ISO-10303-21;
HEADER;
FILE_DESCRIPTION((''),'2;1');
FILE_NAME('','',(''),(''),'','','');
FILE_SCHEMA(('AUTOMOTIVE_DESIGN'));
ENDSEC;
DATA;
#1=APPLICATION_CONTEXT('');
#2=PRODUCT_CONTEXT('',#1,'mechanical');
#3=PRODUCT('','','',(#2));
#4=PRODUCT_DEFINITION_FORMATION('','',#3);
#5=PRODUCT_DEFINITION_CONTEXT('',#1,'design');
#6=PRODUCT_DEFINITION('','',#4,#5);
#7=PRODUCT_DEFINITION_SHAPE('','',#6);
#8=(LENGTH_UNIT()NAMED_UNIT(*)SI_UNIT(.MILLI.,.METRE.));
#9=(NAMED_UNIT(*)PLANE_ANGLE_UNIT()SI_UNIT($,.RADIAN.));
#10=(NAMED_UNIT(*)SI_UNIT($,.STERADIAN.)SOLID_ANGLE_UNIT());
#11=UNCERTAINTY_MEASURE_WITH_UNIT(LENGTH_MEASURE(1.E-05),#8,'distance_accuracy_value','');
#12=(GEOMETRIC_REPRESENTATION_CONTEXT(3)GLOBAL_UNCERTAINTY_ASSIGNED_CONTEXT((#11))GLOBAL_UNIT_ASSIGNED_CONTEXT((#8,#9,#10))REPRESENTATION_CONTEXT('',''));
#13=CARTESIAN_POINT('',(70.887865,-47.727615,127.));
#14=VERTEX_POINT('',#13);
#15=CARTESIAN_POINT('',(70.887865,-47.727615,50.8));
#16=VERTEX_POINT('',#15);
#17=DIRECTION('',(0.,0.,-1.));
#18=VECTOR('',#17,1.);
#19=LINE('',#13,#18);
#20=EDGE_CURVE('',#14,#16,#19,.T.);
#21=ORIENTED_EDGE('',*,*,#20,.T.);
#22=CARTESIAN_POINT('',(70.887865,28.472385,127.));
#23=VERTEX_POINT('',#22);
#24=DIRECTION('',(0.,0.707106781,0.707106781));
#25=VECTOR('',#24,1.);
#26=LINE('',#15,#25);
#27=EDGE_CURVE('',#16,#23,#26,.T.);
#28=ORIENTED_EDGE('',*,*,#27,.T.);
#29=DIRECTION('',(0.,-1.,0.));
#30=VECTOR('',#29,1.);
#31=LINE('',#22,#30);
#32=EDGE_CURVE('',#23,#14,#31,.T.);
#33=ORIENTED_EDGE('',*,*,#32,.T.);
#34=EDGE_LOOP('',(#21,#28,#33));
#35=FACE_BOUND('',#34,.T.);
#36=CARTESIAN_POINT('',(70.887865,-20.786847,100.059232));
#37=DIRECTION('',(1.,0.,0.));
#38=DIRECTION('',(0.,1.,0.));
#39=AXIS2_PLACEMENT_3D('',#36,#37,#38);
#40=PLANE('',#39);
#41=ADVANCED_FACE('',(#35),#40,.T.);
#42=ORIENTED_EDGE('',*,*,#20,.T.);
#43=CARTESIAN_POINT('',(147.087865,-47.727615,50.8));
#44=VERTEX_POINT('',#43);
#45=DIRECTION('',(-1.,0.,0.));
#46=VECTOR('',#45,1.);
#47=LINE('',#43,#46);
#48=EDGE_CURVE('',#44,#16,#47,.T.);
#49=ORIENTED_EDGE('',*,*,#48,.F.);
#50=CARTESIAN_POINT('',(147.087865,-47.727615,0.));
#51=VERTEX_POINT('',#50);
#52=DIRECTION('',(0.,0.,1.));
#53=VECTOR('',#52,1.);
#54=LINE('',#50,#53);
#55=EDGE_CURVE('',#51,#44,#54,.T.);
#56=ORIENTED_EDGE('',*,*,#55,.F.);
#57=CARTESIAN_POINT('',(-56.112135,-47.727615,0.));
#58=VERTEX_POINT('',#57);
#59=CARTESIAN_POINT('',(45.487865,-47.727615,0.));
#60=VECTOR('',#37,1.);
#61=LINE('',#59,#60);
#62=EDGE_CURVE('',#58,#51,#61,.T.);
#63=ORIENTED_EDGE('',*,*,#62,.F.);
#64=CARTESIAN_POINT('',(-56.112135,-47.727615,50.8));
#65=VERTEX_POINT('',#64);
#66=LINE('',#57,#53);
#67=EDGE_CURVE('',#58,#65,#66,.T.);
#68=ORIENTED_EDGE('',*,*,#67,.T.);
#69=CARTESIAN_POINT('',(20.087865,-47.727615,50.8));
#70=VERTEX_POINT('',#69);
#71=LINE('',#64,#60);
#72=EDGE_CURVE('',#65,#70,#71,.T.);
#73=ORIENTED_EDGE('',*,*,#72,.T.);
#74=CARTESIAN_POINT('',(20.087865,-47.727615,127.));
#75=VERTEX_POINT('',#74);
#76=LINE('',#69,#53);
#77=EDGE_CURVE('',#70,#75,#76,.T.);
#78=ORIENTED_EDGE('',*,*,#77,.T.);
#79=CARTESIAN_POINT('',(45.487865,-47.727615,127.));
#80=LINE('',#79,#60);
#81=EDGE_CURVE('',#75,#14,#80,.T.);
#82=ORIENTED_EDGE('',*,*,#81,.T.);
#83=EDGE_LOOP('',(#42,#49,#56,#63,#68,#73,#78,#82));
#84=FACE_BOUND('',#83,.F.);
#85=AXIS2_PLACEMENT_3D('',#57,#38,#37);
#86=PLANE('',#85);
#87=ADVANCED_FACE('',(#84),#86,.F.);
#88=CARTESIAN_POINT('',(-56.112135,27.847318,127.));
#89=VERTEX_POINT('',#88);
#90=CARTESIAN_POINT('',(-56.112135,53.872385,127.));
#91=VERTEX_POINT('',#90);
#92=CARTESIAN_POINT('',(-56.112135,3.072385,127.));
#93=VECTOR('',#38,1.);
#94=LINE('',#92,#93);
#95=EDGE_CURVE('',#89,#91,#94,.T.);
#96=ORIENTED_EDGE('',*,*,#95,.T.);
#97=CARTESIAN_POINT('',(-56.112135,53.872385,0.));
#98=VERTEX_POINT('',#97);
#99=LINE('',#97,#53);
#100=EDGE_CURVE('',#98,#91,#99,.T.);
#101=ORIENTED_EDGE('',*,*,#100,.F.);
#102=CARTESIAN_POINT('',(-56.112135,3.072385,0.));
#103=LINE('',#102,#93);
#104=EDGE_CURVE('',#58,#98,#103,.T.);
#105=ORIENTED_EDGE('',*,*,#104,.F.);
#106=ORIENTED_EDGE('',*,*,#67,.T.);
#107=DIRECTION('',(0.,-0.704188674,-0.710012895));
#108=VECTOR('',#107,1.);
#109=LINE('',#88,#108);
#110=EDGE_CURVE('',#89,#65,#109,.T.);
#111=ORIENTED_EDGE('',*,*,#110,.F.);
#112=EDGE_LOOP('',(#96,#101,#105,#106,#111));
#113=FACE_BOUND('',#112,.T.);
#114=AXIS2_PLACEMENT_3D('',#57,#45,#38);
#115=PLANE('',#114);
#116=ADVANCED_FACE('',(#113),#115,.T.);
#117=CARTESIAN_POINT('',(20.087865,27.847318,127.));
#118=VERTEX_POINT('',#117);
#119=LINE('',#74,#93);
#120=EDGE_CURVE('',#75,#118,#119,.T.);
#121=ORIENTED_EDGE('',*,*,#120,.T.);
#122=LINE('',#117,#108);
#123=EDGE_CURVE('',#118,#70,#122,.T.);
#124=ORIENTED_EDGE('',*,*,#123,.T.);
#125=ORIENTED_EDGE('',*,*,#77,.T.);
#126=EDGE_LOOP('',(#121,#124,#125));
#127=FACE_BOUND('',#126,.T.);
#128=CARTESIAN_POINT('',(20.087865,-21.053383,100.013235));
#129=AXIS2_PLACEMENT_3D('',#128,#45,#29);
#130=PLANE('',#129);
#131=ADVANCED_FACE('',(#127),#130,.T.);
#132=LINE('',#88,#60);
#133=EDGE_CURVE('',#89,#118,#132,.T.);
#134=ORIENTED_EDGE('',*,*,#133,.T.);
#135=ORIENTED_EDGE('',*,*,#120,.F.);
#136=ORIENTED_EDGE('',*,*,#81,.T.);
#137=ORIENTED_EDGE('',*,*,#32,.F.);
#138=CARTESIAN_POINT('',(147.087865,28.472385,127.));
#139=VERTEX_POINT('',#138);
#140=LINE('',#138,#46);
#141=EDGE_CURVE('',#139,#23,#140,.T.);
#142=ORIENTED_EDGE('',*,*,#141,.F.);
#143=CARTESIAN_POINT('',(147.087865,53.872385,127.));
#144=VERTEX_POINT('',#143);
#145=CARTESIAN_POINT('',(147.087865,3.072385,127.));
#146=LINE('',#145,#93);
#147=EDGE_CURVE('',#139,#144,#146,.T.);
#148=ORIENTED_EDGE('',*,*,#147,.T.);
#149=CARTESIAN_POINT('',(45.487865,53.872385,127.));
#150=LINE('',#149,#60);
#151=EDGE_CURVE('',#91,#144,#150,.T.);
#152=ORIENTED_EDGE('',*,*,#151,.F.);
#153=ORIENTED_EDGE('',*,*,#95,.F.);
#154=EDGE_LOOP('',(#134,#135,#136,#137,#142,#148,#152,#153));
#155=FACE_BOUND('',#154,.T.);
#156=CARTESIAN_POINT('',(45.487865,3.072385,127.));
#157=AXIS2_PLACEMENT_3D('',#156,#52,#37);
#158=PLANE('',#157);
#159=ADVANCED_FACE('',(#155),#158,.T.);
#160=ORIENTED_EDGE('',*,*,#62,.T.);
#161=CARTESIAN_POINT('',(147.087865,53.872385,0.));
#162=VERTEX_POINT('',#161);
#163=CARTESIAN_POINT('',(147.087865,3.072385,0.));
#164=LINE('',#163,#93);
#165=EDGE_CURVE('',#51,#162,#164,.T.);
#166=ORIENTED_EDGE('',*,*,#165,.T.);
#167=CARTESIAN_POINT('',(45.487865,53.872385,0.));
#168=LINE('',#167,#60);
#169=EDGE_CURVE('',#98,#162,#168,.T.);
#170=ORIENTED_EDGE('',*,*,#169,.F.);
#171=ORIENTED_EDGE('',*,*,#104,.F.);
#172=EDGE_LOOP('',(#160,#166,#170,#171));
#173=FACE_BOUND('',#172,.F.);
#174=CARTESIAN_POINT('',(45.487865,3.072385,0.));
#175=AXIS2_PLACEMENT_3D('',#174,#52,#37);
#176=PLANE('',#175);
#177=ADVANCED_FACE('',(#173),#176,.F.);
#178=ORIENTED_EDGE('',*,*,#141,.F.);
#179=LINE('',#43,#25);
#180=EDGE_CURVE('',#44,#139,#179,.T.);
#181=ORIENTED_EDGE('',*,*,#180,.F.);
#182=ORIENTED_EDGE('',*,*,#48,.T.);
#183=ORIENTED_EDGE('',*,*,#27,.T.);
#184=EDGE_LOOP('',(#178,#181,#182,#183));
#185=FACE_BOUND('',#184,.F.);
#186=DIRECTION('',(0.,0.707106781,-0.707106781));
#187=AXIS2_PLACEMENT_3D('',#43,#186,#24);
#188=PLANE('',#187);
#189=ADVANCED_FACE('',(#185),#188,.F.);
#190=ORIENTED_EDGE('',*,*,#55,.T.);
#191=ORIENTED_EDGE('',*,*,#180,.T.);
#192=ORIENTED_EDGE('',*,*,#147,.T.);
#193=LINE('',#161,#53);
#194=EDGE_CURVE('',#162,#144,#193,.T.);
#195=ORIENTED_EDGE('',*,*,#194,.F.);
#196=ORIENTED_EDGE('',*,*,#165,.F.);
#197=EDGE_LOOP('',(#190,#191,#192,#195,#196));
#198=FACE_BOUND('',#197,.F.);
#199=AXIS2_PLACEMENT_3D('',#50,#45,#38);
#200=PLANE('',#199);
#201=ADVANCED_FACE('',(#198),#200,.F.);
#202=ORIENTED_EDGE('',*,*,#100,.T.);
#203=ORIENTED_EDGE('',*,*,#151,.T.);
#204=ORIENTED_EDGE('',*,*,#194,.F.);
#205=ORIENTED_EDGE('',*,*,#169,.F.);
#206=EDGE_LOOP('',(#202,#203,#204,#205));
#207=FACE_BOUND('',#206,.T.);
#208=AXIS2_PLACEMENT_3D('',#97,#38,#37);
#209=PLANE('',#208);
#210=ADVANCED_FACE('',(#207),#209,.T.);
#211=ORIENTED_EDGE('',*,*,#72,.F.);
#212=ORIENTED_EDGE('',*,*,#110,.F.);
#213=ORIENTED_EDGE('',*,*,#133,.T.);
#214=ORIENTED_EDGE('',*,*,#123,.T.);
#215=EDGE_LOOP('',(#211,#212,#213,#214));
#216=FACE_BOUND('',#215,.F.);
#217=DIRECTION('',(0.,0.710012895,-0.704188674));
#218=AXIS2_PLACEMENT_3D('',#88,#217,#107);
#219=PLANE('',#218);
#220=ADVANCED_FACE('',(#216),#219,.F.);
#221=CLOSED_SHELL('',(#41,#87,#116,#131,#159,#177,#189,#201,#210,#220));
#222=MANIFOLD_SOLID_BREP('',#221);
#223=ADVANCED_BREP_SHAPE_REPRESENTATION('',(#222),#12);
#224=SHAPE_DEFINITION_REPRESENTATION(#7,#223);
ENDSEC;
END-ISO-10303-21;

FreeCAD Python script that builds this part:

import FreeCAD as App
import Part
import Sketcher
from FreeCAD import Vector
Q = App.Units.Quantity

doc = App.newDocument("Part")
body = doc.addObject("PartDesign::Body", "Body")

sketch1 = body.newObject("Sketcher::SketchObject", "Sketch")
sketch1.AttachmentSupport = (doc.getObject("XY_Plane"), [""])
sketch1.MapMode = "FlatFace"
sketch1.addGeometry([
    Part.LineSegment(Vector(-56.112135, 53.872385, 0), Vector(-56.112135, -47.727615, 0)),
    Part.LineSegment(Vector(-56.112135, -47.727615, 0), Vector(147.087865, -47.727615, 0)),
    Part.LineSegment(Vector(147.087865, -47.727615, 0), Vector(147.087865, 53.872385, 0)),
    Part.LineSegment(Vector(147.087865, 53.872385, 0), Vector(-56.112135, 53.872385, 0)),
], False)
sketch1.addConstraint([
    Sketcher.Constraint("Coincident", 0, 2, 1, 1),
    Sketcher.Constraint("Coincident", 1, 2, 2, 1),
    Sketcher.Constraint("Coincident", 2, 2, 3, 1),
    Sketcher.Constraint("Coincident", 3, 2, 0, 1),
    Sketcher.Constraint("Vertical", 0),
    Sketcher.Constraint("Horizontal", 1),
    Sketcher.Constraint("Vertical", 2),
    Sketcher.Constraint("Horizontal", 3),
    Sketcher.Constraint("DistanceX", 1, 1, 1, 2, Q("8 in")),
    Sketcher.Constraint("DistanceY", 0, 2, 0, 1, Q("4 in")),
    Sketcher.Constraint("DistanceX", 0, 2, -1, 1, Q("56.112135 mm")),
    Sketcher.Constraint("DistanceY", 0, 2, -1, 1, Q("47.727615 mm")),
])
pad1 = body.newObject("PartDesign::Pad", "Pad")
pad1.Profile = sketch1
pad1.Length = Q("5 in")

sketch2 = body.newObject("Sketcher::SketchObject", "Sketch001")
sketch2.AttachmentSupport = (doc.getObject("YZ_Plane"), [""])
sketch2.MapMode = "FlatFace"
sketch2.AttachmentOffset = App.Placement(Vector(0, 0, 147.087865), App.Rotation())
sketch2.addGeometry([
    Part.LineSegment(Vector(-47.727615, 50.8, 0), Vector(28.472385, 127, 0)),
    Part.LineSegment(Vector(28.472385, 127, 0), Vector(-47.727615, 127, 0)),
    Part.LineSegment(Vector(-47.727615, 127, 0), Vector(-47.727615, 50.8, 0)),
], False)
sketch2.addConstraint([
    Sketcher.Constraint("Coincident", 0, 2, 1, 1),
    Sketcher.Constraint("Coincident", 1, 2, 2, 1),
    Sketcher.Constraint("Coincident", 2, 2, 0, 1),
    Sketcher.Constraint("Horizontal", 1),
    Sketcher.Constraint("Vertical", 2),
    Sketcher.Constraint("Equal", 1, 2),
    Sketcher.Constraint("DistanceX", 1, 2, 1, 1, Q("3 in")),
    Sketcher.Constraint("DistanceY", -1, 1, 0, 2, Q("5 in")),
    Sketcher.Constraint("DistanceX", -1, 1, 0, 2, Q("28.472385 mm")),
])
pocket1 = body.newObject("PartDesign::Pocket", "Pocket")
pocket1.Profile = sketch2
pocket1.Length = Q("3 in")

sketch3 = body.newObject("Sketcher::SketchObject", "Sketch002")
sketch3.AttachmentSupport = (doc.getObject("YZ_Plane"), [""])
sketch3.MapMode = "FlatFace"
sketch3.AttachmentOffset = App.Placement(Vector(0, 0, -56.112135), App.Rotation())
sketch3.addGeometry([
    Part.LineSegment(Vector(27.847318, 127, 0), Vector(-47.727615, 50.8, 0)),
    Part.LineSegment(Vector(-47.727615, 50.8, 0), Vector(-47.727615, 127, 0)),
    Part.LineSegment(Vector(-47.727615, 127, 0), Vector(27.847318, 127, 0)),
], False)
sketch3.addConstraint([
    Sketcher.Constraint("Coincident", 0, 2, 1, 1),
    Sketcher.Constraint("Coincident", 1, 2, 2, 1),
    Sketcher.Constraint("Coincident", 2, 2, 0, 1),
    Sketcher.Constraint("Vertical", 1),
    Sketcher.Constraint("Horizontal", 2),
    Sketcher.Constraint("DistanceY", 1, 1, 1, 2, Q("3 in")),
    Sketcher.Constraint("DistanceY", -1, 1, 0, 2, Q("2 in")),
    Sketcher.Constraint("DistanceX", 2, 1, 2, 2, Q("75.574933 mm")),
    Sketcher.Constraint("DistanceX", -1, 1, 2, 2, Q("27.847318 mm")),
])
pocket2 = body.newObject("PartDesign::Pocket", "Pocket001")
pocket2.Profile = sketch3
pocket2.Length = Q("3 in")
pocket2.Reversed = True

doc.recompute()
